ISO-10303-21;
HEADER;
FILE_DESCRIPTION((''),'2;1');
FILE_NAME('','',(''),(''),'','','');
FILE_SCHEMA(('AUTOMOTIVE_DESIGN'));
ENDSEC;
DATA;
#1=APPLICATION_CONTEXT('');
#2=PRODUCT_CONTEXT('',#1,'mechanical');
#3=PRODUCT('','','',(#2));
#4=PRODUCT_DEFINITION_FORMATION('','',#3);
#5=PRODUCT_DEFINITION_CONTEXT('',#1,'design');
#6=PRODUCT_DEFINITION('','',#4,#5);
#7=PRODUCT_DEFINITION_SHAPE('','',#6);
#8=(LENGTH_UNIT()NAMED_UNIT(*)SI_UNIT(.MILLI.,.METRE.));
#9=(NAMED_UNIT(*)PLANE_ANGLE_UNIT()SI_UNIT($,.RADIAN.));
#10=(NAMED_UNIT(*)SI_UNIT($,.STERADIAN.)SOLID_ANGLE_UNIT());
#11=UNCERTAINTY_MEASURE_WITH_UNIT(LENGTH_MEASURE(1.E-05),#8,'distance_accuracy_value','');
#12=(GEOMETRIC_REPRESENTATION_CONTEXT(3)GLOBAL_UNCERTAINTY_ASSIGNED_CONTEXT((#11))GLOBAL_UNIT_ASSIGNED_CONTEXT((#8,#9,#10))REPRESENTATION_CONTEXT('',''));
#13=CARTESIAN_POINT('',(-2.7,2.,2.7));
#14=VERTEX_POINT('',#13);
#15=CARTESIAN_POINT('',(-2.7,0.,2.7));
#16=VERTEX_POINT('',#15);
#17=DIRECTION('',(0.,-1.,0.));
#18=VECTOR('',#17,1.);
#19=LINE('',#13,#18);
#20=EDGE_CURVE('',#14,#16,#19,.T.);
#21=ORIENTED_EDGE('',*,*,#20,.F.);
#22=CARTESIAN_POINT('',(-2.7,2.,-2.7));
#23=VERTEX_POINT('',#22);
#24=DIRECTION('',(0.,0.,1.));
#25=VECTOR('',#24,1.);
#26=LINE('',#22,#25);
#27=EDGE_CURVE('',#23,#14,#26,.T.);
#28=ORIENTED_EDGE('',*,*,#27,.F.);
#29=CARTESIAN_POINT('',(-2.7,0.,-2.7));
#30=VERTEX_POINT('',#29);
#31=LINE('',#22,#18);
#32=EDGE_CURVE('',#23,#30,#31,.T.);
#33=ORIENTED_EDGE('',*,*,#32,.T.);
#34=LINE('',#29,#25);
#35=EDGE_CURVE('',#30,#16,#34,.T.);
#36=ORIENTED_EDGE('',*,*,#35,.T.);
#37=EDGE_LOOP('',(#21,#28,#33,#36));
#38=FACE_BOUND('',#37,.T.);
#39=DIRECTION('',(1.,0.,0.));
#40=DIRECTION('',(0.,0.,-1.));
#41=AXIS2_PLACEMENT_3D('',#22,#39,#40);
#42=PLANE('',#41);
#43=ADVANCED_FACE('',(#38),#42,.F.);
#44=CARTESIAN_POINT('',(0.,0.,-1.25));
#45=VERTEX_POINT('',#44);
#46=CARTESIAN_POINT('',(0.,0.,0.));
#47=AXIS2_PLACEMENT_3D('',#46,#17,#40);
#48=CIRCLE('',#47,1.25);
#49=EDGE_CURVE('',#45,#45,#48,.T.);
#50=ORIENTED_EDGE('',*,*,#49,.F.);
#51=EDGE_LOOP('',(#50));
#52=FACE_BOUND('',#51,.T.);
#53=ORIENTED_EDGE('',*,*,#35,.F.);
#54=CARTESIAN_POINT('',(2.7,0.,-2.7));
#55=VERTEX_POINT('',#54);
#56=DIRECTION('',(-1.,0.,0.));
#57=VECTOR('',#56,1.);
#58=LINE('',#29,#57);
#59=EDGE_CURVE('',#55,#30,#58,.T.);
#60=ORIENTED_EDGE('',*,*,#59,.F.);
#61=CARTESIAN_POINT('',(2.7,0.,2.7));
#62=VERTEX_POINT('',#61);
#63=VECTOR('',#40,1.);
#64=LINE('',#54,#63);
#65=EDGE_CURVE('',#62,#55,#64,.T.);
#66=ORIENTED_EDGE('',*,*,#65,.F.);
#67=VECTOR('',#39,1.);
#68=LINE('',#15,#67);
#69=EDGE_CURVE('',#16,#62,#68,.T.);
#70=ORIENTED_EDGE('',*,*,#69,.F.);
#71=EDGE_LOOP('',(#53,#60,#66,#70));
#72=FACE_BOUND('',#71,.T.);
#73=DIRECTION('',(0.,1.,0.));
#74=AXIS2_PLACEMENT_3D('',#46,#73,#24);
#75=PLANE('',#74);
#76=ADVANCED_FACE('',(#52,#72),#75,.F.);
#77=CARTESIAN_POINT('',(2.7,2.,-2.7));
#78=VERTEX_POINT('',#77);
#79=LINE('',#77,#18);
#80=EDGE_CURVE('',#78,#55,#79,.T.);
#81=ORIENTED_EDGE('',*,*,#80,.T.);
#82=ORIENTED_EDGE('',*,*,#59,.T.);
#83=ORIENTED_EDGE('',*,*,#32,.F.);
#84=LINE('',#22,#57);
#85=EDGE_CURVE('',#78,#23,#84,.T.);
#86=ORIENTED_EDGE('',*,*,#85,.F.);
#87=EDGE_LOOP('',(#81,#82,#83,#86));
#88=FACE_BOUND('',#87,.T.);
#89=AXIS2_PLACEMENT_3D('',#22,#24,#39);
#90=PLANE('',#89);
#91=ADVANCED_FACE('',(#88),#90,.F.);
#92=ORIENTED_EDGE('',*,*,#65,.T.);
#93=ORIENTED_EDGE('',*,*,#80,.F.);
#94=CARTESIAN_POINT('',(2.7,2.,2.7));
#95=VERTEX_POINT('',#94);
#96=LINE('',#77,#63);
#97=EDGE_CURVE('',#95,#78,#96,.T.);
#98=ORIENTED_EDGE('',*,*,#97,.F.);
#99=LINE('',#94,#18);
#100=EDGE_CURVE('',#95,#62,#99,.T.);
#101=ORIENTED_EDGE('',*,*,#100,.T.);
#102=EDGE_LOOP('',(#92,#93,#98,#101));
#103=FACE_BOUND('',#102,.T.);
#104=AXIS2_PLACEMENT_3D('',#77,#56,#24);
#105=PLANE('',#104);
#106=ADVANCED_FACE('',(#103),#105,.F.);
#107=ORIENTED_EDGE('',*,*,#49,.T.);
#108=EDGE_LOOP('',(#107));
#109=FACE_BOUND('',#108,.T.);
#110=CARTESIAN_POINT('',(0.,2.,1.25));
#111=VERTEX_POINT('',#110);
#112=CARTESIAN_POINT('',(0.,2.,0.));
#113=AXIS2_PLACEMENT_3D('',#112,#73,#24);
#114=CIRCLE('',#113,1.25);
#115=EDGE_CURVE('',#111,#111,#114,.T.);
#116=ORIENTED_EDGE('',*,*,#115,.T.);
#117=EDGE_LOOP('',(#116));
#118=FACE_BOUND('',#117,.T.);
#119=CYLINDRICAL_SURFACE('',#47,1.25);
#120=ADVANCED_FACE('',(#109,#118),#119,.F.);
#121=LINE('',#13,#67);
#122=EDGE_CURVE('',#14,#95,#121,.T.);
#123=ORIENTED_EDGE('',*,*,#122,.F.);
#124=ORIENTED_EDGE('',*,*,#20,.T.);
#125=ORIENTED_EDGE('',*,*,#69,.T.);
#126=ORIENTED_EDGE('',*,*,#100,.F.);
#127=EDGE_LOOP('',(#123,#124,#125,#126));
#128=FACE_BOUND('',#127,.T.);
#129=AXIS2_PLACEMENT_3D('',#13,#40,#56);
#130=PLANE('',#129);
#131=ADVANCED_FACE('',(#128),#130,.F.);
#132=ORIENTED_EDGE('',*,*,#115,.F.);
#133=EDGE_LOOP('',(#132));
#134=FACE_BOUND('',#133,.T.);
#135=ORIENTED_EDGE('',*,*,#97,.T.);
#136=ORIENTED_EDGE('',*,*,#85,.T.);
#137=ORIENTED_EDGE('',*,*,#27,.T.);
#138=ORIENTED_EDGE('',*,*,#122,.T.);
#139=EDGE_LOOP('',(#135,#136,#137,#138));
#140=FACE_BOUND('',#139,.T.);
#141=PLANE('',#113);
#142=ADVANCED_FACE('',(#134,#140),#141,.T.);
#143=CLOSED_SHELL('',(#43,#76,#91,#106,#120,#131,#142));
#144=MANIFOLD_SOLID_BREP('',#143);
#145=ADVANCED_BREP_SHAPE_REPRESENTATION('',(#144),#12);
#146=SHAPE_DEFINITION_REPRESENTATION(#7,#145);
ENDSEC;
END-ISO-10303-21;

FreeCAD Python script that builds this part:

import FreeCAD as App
import Part
import Sketcher

V = App.Vector
Q = App.Units.Quantity

doc = App.newDocument("Part")
body = doc.addObject("PartDesign::Body", "Body")

# Sketch on XZ plane
sketch1 = doc.addObject("Sketcher::SketchObject", "Sketch")
body.addObject(sketch1)
sketch1.AttachmentSupport = (doc.XZ_Plane, [""])
sketch1.MapMode = "FlatFace"
sketch1.addGeometry([
    Part.LineSegment(V(-2.7, -2.7, 0), V(-2.7, 2.7, 0)),
    Part.LineSegment(V(-2.7, 2.7, 0), V(2.7, 2.7, 0)),
    Part.LineSegment(V(2.7, 2.7, 0), V(2.7, -2.7, 0)),
    Part.LineSegment(V(2.7, -2.7, 0), V(-2.7, -2.7, 0)),
], False)
sketch1.addConstraint([
    Sketcher.Constraint("Coincident", 0, 2, 1, 1),
    Sketcher.Constraint("Coincident", 1, 2, 2, 1),
    Sketcher.Constraint("Coincident", 2, 2, 3, 1),
    Sketcher.Constraint("Coincident", 3, 2, 0, 1),
    Sketcher.Constraint("Vertical", 0),
    Sketcher.Constraint("Horizontal", 1),
    Sketcher.Constraint("Vertical", 2),
    Sketcher.Constraint("Horizontal", 3),
    Sketcher.Constraint("Symmetric", 0, 2, 2, 2, -1, 1),
    Sketcher.Constraint("Equal", 3, 0),
    Sketcher.Constraint("DistanceX", 1, 1, 1, 2, Q("5.4 mm")),
])
pad1 = doc.addObject("PartDesign::Pad", "Pad")
body.addObject(pad1)
pad1.Profile = sketch1
pad1.Length = 2
pad1.Reversed = True

# Sketch on XZ plane
sketch2 = doc.addObject("Sketcher::SketchObject", "Sketch001")
body.addObject(sketch2)
sketch2.AttachmentSupport = (doc.XZ_Plane, [""])
sketch2.MapMode = "FlatFace"
sketch2.addGeometry(Part.Circle(V(0, 0, 0), V(0, 0, 1), 1.25), False)
sketch2.addConstraint([
    Sketcher.Constraint("Coincident", 0, 3, -1, 1),
    Sketcher.Constraint("Diameter", 0, Q("2.5 mm")),
])
doc.recompute()
hole = doc.addObject("PartDesign::Hole", "Hole")
body.addObject(hole)
hole.Profile = sketch2
hole.ThreadType = "None"
hole.Diameter = 2.5
hole.DepthType = "Dimension"
hole.Depth = 6.5
hole.DrillPoint = "Angled"
hole.DrillPointAngle = 118

doc.recompute()
